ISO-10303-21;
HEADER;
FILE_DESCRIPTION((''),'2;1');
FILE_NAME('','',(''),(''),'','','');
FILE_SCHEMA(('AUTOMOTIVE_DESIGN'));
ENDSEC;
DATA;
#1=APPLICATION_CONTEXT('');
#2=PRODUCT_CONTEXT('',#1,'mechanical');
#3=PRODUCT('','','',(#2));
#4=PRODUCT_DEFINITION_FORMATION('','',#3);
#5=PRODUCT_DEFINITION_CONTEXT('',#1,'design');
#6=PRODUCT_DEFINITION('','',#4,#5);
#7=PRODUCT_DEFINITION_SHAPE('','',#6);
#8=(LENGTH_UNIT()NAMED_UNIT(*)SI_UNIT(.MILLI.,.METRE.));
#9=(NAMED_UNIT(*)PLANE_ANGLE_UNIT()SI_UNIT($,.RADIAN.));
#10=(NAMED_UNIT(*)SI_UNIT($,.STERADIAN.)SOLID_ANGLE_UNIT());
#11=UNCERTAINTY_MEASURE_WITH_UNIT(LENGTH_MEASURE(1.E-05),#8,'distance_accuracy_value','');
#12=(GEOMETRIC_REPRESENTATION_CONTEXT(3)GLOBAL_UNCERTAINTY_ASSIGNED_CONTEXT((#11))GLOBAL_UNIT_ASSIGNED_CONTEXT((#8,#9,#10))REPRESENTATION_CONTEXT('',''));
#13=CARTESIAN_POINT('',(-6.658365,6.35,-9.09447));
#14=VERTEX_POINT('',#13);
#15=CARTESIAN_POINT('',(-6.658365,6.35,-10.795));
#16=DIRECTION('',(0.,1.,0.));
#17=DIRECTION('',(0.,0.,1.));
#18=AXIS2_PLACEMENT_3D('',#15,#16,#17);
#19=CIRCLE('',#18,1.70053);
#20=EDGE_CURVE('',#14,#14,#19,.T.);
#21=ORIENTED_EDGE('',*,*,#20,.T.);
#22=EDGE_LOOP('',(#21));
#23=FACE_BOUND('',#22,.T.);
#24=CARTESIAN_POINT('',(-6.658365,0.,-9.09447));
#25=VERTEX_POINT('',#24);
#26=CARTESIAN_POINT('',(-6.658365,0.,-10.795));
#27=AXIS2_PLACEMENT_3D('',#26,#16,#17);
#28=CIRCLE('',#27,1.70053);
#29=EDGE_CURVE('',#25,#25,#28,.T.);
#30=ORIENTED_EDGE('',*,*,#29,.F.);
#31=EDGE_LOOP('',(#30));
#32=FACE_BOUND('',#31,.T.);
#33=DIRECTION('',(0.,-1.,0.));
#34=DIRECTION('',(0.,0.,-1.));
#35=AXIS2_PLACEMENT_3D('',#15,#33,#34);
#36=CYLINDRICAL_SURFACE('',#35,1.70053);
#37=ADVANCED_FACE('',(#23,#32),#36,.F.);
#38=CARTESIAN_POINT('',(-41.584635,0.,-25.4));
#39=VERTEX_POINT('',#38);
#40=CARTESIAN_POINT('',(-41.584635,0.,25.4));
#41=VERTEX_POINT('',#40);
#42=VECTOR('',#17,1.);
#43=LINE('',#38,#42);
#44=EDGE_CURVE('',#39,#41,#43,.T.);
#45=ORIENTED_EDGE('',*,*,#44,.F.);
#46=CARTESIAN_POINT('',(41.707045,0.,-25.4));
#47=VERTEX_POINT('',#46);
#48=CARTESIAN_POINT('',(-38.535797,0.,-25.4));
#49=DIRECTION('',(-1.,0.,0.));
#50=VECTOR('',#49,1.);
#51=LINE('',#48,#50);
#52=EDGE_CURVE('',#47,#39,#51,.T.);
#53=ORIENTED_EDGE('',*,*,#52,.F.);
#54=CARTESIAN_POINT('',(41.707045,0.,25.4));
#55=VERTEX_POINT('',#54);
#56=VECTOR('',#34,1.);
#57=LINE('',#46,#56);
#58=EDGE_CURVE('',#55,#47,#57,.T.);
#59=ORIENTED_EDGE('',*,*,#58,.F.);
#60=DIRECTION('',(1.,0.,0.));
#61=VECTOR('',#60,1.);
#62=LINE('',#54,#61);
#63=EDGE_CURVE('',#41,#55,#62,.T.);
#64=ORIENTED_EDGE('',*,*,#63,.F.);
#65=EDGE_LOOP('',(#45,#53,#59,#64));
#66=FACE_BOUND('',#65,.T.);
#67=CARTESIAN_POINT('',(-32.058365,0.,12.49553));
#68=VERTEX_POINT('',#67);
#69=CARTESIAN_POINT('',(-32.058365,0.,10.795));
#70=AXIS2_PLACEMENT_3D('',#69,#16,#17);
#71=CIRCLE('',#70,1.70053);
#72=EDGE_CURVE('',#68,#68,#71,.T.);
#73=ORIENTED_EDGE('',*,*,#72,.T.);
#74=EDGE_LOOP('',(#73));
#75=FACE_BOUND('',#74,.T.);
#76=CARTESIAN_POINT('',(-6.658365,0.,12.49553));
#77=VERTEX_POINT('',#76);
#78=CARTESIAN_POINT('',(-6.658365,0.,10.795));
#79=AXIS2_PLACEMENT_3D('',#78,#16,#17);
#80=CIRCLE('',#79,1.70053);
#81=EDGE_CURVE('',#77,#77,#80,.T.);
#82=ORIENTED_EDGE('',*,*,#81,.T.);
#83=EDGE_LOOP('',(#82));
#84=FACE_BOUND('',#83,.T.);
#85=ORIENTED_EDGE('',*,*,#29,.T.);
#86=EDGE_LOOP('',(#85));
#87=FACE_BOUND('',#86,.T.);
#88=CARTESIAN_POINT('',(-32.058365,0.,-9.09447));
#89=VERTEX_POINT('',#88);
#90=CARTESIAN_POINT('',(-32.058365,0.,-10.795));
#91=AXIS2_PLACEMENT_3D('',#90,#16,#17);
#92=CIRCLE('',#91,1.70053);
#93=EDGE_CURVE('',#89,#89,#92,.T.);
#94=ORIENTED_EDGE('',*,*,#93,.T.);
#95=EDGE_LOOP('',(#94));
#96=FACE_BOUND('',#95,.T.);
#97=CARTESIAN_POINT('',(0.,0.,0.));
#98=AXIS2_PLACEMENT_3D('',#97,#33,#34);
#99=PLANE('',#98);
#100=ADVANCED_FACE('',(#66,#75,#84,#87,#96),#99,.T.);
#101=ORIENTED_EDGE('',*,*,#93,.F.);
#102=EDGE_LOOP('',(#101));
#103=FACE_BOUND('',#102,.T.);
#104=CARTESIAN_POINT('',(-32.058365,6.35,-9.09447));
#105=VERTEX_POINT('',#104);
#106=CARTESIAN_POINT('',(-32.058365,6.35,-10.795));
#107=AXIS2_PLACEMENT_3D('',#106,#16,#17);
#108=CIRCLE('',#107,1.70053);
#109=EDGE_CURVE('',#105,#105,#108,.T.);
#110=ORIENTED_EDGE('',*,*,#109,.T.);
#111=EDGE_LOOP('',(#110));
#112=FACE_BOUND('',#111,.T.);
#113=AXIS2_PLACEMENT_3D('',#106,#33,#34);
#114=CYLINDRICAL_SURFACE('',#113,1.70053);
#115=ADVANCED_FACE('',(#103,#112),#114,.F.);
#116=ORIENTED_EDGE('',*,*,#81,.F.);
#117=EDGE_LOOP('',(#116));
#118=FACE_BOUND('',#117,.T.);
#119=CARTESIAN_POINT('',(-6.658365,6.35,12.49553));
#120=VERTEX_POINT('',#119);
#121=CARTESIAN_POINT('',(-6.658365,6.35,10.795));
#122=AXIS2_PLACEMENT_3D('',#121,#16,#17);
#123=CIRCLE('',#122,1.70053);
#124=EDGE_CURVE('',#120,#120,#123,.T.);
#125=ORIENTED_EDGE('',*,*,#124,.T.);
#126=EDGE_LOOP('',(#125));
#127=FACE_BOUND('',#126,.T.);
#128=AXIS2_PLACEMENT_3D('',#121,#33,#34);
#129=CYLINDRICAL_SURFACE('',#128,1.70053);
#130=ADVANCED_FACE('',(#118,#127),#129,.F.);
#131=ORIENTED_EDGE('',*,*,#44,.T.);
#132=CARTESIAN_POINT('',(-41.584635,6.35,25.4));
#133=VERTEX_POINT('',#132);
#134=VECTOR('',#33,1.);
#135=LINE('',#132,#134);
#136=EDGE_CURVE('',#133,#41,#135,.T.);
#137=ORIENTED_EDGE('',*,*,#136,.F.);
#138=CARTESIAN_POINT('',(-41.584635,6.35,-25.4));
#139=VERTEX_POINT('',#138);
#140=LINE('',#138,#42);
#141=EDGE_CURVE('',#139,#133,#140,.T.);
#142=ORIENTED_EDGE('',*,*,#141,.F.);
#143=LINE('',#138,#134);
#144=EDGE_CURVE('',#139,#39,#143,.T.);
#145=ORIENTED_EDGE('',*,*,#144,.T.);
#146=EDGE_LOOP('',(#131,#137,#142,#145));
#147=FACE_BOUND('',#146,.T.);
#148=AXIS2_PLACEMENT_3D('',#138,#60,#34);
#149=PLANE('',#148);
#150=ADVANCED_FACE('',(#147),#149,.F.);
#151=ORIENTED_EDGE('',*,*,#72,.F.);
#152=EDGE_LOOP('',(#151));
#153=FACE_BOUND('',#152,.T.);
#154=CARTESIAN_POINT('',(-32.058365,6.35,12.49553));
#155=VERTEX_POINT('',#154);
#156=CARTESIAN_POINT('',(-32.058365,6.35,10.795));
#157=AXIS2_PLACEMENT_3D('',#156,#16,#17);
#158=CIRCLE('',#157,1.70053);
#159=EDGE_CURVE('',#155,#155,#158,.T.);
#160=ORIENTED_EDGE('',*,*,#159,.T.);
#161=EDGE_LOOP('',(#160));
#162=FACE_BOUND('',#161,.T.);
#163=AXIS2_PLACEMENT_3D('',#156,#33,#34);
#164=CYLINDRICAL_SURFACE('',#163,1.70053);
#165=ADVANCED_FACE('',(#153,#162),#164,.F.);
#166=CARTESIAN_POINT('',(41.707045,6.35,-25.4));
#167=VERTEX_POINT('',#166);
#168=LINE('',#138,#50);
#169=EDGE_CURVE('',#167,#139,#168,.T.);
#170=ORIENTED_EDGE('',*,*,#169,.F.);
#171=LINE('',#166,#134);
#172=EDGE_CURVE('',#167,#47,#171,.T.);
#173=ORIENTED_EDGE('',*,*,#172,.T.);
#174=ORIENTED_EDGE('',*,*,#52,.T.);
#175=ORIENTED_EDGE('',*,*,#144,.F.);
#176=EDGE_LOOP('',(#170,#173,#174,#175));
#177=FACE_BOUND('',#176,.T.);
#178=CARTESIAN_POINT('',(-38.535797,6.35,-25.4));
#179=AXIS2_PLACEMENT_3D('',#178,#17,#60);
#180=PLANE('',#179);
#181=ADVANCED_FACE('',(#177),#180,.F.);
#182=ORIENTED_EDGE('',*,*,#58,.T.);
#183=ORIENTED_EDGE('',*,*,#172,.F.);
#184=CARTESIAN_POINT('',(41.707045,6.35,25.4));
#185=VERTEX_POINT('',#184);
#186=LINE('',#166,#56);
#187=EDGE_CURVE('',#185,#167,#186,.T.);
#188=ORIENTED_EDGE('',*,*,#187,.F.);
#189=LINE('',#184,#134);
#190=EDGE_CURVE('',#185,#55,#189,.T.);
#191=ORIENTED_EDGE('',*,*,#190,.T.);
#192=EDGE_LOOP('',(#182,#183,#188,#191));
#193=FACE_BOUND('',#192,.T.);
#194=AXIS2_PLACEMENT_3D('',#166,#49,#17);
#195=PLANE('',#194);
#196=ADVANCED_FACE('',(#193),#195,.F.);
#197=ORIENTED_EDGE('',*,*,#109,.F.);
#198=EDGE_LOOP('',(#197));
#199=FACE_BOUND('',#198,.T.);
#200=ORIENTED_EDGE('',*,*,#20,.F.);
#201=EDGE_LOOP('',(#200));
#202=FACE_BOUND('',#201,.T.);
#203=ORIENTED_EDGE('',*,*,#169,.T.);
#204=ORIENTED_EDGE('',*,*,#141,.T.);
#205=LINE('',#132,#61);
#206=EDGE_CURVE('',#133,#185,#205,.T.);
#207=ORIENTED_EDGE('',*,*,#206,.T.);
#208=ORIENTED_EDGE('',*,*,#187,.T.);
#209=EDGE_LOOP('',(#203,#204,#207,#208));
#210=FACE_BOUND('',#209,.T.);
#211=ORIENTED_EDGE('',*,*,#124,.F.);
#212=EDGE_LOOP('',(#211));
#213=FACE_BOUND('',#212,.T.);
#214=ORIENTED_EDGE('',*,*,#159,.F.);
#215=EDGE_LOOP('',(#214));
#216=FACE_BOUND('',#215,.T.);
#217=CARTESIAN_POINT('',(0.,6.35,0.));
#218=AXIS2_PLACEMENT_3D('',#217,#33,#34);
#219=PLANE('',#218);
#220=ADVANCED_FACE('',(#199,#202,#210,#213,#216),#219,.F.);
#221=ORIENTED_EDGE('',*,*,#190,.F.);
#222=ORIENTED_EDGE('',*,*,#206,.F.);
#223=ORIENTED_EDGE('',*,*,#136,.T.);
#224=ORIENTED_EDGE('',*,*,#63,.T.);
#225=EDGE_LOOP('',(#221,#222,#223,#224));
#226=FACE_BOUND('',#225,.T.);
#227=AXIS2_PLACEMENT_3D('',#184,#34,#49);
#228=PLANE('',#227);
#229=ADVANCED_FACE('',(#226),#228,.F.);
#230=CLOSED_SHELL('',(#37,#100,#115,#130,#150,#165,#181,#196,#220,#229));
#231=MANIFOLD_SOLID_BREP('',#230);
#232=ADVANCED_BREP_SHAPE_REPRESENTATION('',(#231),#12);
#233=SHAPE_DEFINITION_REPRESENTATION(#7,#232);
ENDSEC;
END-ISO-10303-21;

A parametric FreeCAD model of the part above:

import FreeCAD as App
import Part
import Sketcher
Q = App.Units.Quantity


def add_polygon(sketch, points):
    """Adds a closed chain of lines whose ends are joined by coincident constraints."""
    first, n = sketch.GeometryCount, len(points)
    for a, b in zip(points, points[1:] + points[:1]):
        sketch.addGeometry(Part.LineSegment(App.Vector(*a, 0), App.Vector(*b, 0)), False)
    for i in range(n):
        sketch.addConstraint(Sketcher.Constraint("Coincident", first + i, 2, first + (i + 1) % n, 1))

doc = App.newDocument("Part")
body = doc.addObject("PartDesign::Body", "Body")

# Sketch on XZ plane
sketch1 = body.newObject("Sketcher::SketchObject", "Sketch")
sketch1.AttachmentSupport = (doc.getObject("XZ_Plane"), [""])
sketch1.MapMode = "FlatFace"
add_polygon(sketch1, [(41.707045, 25.4), (41.707045, -25.4), (-41.584634, -25.4), (-41.584634, 25.4)])  # lines 0-3
sketch1.addGeometry(Part.Circle(App.Vector(-32.058365, 10.795, 0), App.Vector(0, 0, 1), 1.70053), False)  # 4
sketch1.addGeometry(Part.Circle(App.Vector(-6.658365, 10.795, 0), App.Vector(0, 0, 1), 1.70053), False)  # 5
sketch1.addGeometry(Part.Circle(App.Vector(-32.058365, -10.795, 0), App.Vector(0, 0, 1), 1.70053), False)  # 6
sketch1.addGeometry(Part.Circle(App.Vector(-6.658365, -10.795, 0), App.Vector(0, 0, 1), 1.70053), False)  # 7
sketch1.addConstraint([
    Sketcher.Constraint("Vertical", 0),
    Sketcher.Constraint("Horizontal", 1),
    Sketcher.Constraint("Vertical", 2),
    Sketcher.Constraint("Horizontal", 3),
    Sketcher.Constraint("Equal", 4, 5),
    Sketcher.Constraint("Equal", 5, 6),
    Sketcher.Constraint("Equal", 6, 7),
    Sketcher.Constraint("Symmetric", 4, 3, 6, 3, -1),
    Sketcher.Constraint("Symmetric", 5, 3, 7, 3, -1),
    Sketcher.Constraint("Horizontal", 4, 3, 5, 3),
    Sketcher.Constraint("DistanceY", 0, 2, 0, 1, Q("2 in")),
    Sketcher.Constraint("DistanceY", 0, 2, -1, 1, Q("1 in")),
    Sketcher.Constraint("DistanceX", 4, 3, 5, 3, Q("1 in")),
    Sketcher.Constraint("Diameter", 4, Q("0.1339 in")),
    Sketcher.Constraint("DistanceY", 6, 3, 4, 3, Q("0.85 in")),
    Sketcher.Constraint("DistanceX", 1, 2, 1, 1, Q("3.2792 in")),
    Sketcher.Constraint("DistanceX", 7, 3, 0, 2, 48.36541),
    Sketcher.Constraint("DistanceX", 4, 3, -1, 1, 32.058365),
])
pad1 = body.newObject("PartDesign::Pad", "Pad")
pad1.Profile = sketch1
pad1.Length = Q("0.25 in")
pad1.Reversed = True

doc.recompute()
